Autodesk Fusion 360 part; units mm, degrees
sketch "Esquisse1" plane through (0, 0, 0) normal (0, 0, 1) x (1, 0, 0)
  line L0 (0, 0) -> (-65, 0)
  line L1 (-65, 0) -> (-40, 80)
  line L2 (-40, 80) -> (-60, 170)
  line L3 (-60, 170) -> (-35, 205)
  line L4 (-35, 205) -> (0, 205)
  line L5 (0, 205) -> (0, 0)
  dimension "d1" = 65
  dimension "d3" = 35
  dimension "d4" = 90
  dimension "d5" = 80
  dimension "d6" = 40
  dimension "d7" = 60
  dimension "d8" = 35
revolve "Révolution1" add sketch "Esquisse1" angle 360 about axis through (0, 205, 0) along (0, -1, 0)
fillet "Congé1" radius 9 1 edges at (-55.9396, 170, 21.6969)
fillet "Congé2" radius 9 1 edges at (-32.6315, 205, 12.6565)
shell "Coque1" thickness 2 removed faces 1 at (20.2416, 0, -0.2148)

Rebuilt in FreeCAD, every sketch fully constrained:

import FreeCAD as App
import Part
import Sketcher

V = App.Vector


def edges_at(feature, points):
    """Names of the edges that pass closest to the given points."""
    edges = feature.Shape.Edges
    near = lambda p: min(range(len(edges)), key=lambda i: edges[i].distToShape(Part.Vertex(*p))[0])
    return sorted({f"Edge{near(p) + 1}" for p in points})


def faces_at(feature, points):
    """Names of the faces that lie closest to the given points."""
    faces = feature.Shape.Faces
    near = lambda p: min(range(len(faces)), key=lambda i: faces[i].distToShape(Part.Vertex(*p))[0])
    return sorted({f"Face{near(p) + 1}" for p in points})

doc = App.newDocument("Part")
params = doc.addObject("Spreadsheet::Sheet", "Params")
for row, (alias, value) in enumerate([
    ("sketch1_width", "65 mm"),
    ("sketch1_width2", "35 mm"),
    ("revolution_angle", "360 deg"),
    ("fillet_radius", "9 mm"),
    ("fillet2_radius", "9 mm"),
    ("thickness_wall", "2 mm"),
], start=1):
    params.set(f"A{row}", alias)
    params.set(f"B{row}", "=" + value)
    params.setAlias(f"B{row}", alias)

body = doc.addObject("PartDesign::Body", "Body")

# Sketch on XY plane
sketch1 = body.newObject("Sketcher::SketchObject", "Sketch")
sketch1.AttachmentSupport = (doc.getObject("XY_Plane"), [""])
sketch1.MapMode = "FlatFace"
sketch1.addGeometry(Part.LineSegment(V(-65, 0, 0), V(0, 0, 0)), False)
sketch1.addGeometry(Part.LineSegment(V(0, 0, 0), V(0, 205, 0)), False)
sketch1.addGeometry(Part.LineSegment(V(0, 205, 0), V(-35, 205, 0)), False)
sketch1.addGeometry(Part.LineSegment(V(-35, 205, 0), V(-60, 170, 0)), False)
sketch1.addGeometry(Part.LineSegment(V(-60, 170, 0), V(-40, 80, 0)), False)
sketch1.addGeometry(Part.LineSegment(V(-40, 80, 0), V(-65, 0, 0)), False)
sketch1.addConstraint(Sketcher.Constraint("Coincident", 0, 2, 1, 1))
sketch1.addConstraint(Sketcher.Constraint("Coincident", 1, 2, 2, 1))
sketch1.addConstraint(Sketcher.Constraint("Coincident", 2, 2, 3, 1))
sketch1.addConstraint(Sketcher.Constraint("Coincident", 3, 2, 4, 1))
sketch1.addConstraint(Sketcher.Constraint("Coincident", 4, 2, 5, 1))
sketch1.addConstraint(Sketcher.Constraint("Coincident", 5, 2, 0, 1))
sketch1.addConstraint(Sketcher.Constraint("Horizontal", 0))
sketch1.addConstraint(Sketcher.Constraint("Vertical", 1))
sketch1.addConstraint(Sketcher.Constraint("Horizontal", 2))
sketch1.addConstraint(Sketcher.Constraint("Coincident", 0, 2, -1, 1))
sketch1.addConstraint(Sketcher.Constraint("DistanceX", 0, 1, 0, 2, 65.0))
sketch1.addConstraint(Sketcher.Constraint("DistanceX", 2, 2, 2, 1, 35.0))
sketch1.addConstraint(Sketcher.Constraint("DistanceX", 3, 2, -1, 1, 60.0))
sketch1.addConstraint(Sketcher.Constraint("DistanceX", 4, 2, -1, 1, 40.0))
sketch1.addConstraint(Sketcher.Constraint("DistanceY", -1, 1, 4, 2, 80.0))
sketch1.addConstraint(Sketcher.Constraint("DistanceY", 3, 2, 2, 2, 35.0))
sketch1.addConstraint(Sketcher.Constraint("DistanceY", 4, 2, 3, 2, 90.0))
sketch1.setExpression("Constraints[10]", "Params.sketch1_width")
sketch1.setExpression("Constraints[11]", "Params.sketch1_width2")
revolution = body.newObject("PartDesign::Revolution", "Revolution")
revolution.Profile = sketch1
revolution.ReferenceAxis = (sketch1, ["V_Axis"])
revolution.setExpression("Angle", "Params.revolution_angle")
doc.recompute()

fillet = body.newObject("PartDesign::Fillet", "Fillet")
fillet.Base = (revolution, edges_at(revolution, [(-55.94, 170, 21.697)]))
fillet.setExpression("Radius", "Params.fillet_radius")
doc.recompute()

fillet2 = body.newObject("PartDesign::Fillet", "Fillet001")
fillet2.Base = (fillet, edges_at(fillet, [(-32.632, 205, 12.656)]))
fillet2.setExpression("Radius", "Params.fillet2_radius")
doc.recompute()

thickness = body.newObject("PartDesign::Thickness", "Thickness")
thickness.Base = (fillet2, faces_at(fillet2, [(20.242, 0, -0.215)]))
thickness.setExpression("Value", "Params.thickness_wall")
thickness.Reversed = True
thickness.Join = "Intersection"

doc.recompute()
